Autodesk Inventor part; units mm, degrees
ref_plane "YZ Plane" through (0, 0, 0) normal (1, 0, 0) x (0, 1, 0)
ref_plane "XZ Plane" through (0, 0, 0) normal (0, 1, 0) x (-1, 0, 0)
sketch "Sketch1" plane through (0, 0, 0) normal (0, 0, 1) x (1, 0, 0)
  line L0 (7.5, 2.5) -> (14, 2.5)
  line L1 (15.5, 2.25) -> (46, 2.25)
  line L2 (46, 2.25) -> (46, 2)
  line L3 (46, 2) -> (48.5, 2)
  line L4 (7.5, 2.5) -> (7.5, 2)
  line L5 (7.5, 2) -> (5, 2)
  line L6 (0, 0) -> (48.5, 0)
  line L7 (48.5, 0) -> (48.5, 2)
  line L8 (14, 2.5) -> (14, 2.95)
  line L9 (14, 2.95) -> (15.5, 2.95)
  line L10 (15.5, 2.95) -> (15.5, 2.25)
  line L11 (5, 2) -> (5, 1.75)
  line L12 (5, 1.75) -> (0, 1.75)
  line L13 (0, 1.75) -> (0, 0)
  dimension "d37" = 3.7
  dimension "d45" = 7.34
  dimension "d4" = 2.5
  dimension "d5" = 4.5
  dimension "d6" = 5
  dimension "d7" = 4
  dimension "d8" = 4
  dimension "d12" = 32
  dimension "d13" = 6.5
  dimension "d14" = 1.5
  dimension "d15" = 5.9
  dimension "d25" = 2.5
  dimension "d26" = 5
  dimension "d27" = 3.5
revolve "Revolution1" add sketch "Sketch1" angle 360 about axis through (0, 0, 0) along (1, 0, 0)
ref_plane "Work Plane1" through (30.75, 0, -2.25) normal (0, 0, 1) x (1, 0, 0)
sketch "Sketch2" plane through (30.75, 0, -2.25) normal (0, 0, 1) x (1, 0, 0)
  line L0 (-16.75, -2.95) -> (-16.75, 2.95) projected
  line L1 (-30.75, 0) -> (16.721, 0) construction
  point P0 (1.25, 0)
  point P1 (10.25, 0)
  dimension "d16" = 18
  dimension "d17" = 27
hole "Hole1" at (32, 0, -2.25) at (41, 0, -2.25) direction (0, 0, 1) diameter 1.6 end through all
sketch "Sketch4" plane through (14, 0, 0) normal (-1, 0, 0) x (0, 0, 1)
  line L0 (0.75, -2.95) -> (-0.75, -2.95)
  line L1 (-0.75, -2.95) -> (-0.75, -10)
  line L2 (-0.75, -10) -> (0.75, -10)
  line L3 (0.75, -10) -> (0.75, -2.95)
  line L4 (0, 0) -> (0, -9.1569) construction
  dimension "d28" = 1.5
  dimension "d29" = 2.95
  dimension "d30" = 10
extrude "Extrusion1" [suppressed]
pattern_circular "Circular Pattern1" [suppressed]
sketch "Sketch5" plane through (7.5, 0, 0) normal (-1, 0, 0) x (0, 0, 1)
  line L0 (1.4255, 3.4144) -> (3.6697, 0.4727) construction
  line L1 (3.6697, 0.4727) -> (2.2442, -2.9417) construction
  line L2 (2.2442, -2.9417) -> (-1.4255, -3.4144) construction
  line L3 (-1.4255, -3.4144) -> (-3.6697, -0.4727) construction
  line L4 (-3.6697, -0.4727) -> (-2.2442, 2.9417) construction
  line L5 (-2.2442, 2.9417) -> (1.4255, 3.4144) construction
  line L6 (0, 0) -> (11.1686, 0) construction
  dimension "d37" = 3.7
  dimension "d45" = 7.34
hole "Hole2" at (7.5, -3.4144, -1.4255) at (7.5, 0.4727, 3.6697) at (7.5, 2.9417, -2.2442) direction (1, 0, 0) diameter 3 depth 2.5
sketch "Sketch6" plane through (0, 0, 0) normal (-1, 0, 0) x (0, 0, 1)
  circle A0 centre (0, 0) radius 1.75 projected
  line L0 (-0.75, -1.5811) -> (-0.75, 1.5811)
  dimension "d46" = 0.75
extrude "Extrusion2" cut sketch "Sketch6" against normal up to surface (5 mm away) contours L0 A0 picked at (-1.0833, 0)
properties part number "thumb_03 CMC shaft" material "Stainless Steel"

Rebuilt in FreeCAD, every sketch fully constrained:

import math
import FreeCAD as App
import Part
import Sketcher

V = App.Vector

doc = App.newDocument("Part")
params = doc.addObject("Spreadsheet::Sheet", "Params")
for row, (alias, value) in enumerate([
    ("sketch1_width", "5 mm"),
    ("sketch1_width2", "6.5 mm"),
    ("sketch1_width3", "2.5 mm"),
    ("sketch1_width4", "1.5 mm"),
    ("sketch1_height", "2 mm"),
    ("revolution_angle", "360 deg"),
    ("sketch2_diameter", "1.6 mm"),
    ("hole_diameter", "1.6 mm"),
    ("sketch3_diameter", "3 mm"),
    ("hole2_diameter", "3 mm"),
    ("hole2_depth", "2.5 mm"),
    ("sketch4_radius", "1.75 mm"),
    ("pocket1_length", "5 mm"),
], start=1):
    params.set(f"A{row}", alias)
    params.set(f"B{row}", "=" + value)
    params.setAlias(f"B{row}", alias)

body = doc.addObject("PartDesign::Body", "Body")

sketch1 = body.newObject("Sketcher::SketchObject", "Sketch")
sketch1.AttachmentSupport = (doc.getObject("XY_Plane"), [""])
sketch1.MapMode = "FlatFace"
sketch1.addGeometry([
    Part.LineSegment(V(14, 2.5, 0), V(7.5, 2.5, 0)),
    Part.LineSegment(V(7.5, 2.5, 0), V(7.5, 2, 0)),
    Part.LineSegment(V(7.5, 2, 0), V(5, 2, 0)),
    Part.LineSegment(V(5, 2, 0), V(5, 1.75, 0)),
    Part.LineSegment(V(5, 1.75, 0), V(0, 1.75, 0)),
    Part.LineSegment(V(0, 1.75, 0), V(0, 0, 0)),
    Part.LineSegment(V(0, 0, 0), V(48.5, 0, 0)),
    Part.LineSegment(V(48.5, 0, 0), V(48.5, 2, 0)),
    Part.LineSegment(V(48.5, 2, 0), V(46, 2, 0)),
    Part.LineSegment(V(46, 2, 0), V(46, 2.25, 0)),
    Part.LineSegment(V(46, 2.25, 0), V(15.5, 2.25, 0)),
    Part.LineSegment(V(15.5, 2.25, 0), V(15.5, 2.95, 0)),
    Part.LineSegment(V(15.5, 2.95, 0), V(14, 2.95, 0)),
    Part.LineSegment(V(14, 2.95, 0), V(14, 2.5, 0)),
], False)
sketch1.addConstraint([
    Sketcher.Constraint("Coincident", 0, 2, 1, 1),
    Sketcher.Constraint("Coincident", 1, 2, 2, 1),
    Sketcher.Constraint("Coincident", 2, 2, 3, 1),
    Sketcher.Constraint("Coincident", 3, 2, 4, 1),
    Sketcher.Constraint("Coincident", 4, 2, 5, 1),
    Sketcher.Constraint("Coincident", 5, 2, 6, 1),
    Sketcher.Constraint("Coincident", 6, 2, 7, 1),
    Sketcher.Constraint("Coincident", 7, 2, 8, 1),
    Sketcher.Constraint("Coincident", 8, 2, 9, 1),
    Sketcher.Constraint("Coincident", 9, 2, 10, 1),
    Sketcher.Constraint("Coincident", 10, 2, 11, 1),
    Sketcher.Constraint("Coincident", 11, 2, 12, 1),
    Sketcher.Constraint("Coincident", 12, 2, 13, 1),
    Sketcher.Constraint("Coincident", 13, 2, 0, 1),
    Sketcher.Constraint("Horizontal", 0),
    Sketcher.Constraint("Vertical", 1),
    Sketcher.Constraint("Horizontal", 2),
    Sketcher.Constraint("Vertical", 3),
    Sketcher.Constraint("Horizontal", 4),
    Sketcher.Constraint("Vertical", 5),
    Sketcher.Constraint("Horizontal", 6),
    Sketcher.Constraint("Vertical", 7),
    Sketcher.Constraint("Horizontal", 8),
    Sketcher.Constraint("Vertical", 9),
    Sketcher.Constraint("Horizontal", 10),
    Sketcher.Constraint("Vertical", 11),
    Sketcher.Constraint("Horizontal", 12),
    Sketcher.Constraint("Vertical", 13),
    Sketcher.Constraint("Coincident", 5, 2, -1, 1),
    Sketcher.Constraint("Horizontal", 2, 2, 7, 2),
    Sketcher.Constraint("Equal", 2, 8),
    Sketcher.Constraint("Equal", 3, 9),
    Sketcher.Constraint("DistanceX", 4, 2, 4, 1, 5.0),
    Sketcher.Constraint("DistanceX", 0, 2, 0, 1, 6.5),
    Sketcher.Constraint("DistanceX", 2, 2, 2, 1, 2.5),
    Sketcher.Constraint("DistanceX", 12, 2, 12, 1, 1.5),
    Sketcher.Constraint("DistanceY", -1, 1, 0, 2, 2.5),
    Sketcher.Constraint("DistanceY", 7, 1, 7, 2, 2.0),
    Sketcher.Constraint("DistanceX", 6, 1, 6, 2, 48.5),
    Sketcher.Constraint("DistanceY", 11, 1, 11, 2, 0.7),
    Sketcher.Constraint("DistanceY", 3, 2, 3, 1, 0.25),
])
sketch1.setExpression("Constraints[32]", "Params.sketch1_width")
sketch1.setExpression("Constraints[33]", "Params.sketch1_width2")
sketch1.setExpression("Constraints[34]", "Params.sketch1_width3")
sketch1.setExpression("Constraints[35]", "Params.sketch1_width4")
sketch1.setExpression("Constraints[37]", "Params.sketch1_height")
revolution = body.newObject("PartDesign::Revolution", "Revolution")
revolution.Profile = sketch1
revolution.ReferenceAxis = (sketch1, ["H_Axis"])
revolution.setExpression("Angle", "Params.revolution_angle")

sketch2 = body.newObject("Sketcher::SketchObject", "Sketch001")
sketch2.AttachmentSupport = (doc.getObject("XY_Plane"), [""])
sketch2.MapMode = "FlatFace"
sketch2.AttachmentOffset = App.Placement(V(0, 0, -2.25), App.Rotation())
sketch2.addGeometry([
    Part.Circle(V(32, 0, 0), V(0, 0, 1), 0.8),
    Part.Circle(V(41, 0, 0), V(0, 0, 1), 0.8),
], False)
sketch2.addConstraint([
    Sketcher.Constraint("Equal", 0, 1),
    Sketcher.Constraint("PointOnObject", 0, 3, -1),
    Sketcher.Constraint("PointOnObject", 1, 3, -1),
    Sketcher.Constraint("Diameter", 0, 1.6),
    Sketcher.Constraint("DistanceX", -1, 1, 0, 3, 32.0),
    Sketcher.Constraint("DistanceX", -1, 1, 1, 3, 41.0),
])
sketch2.setExpression("Constraints[3]", "Params.sketch2_diameter")
doc.recompute()
hole = body.newObject("PartDesign::Hole", "Hole")
hole.Profile = sketch2
hole.ThreadType = "None"
hole.setExpression("Diameter", "Params.hole_diameter")
hole.DepthType = "ThroughAll"
hole.Reversed = True

sketch3 = body.newObject("Sketcher::SketchObject", "Sketch002")
sketch3.AttachmentSupport = (doc.getObject("YZ_Plane"), [""])
sketch3.MapMode = "FlatFace"
sketch3.AttachmentOffset = App.Placement(V(0, 0, 7.5), App.Rotation())
sketch3.addGeometry([
    Part.Circle(V(-3.4, -1.4, 0), V(0, 0, 1), 1.5),
    Part.Circle(V(0.5, 3.7, 0), V(0, 0, 1), 1.5),
    Part.Circle(V(2.9, -2.2, 0), V(0, 0, 1), 1.5),
], False)
sketch3.addConstraint([
    Sketcher.Constraint("Equal", 0, 1),
    Sketcher.Constraint("Equal", 1, 2),
    Sketcher.Constraint("Diameter", 0, 3.0),
    Sketcher.Constraint("DistanceX", 0, 3, 1, 3, 3.887),
    Sketcher.Constraint("DistanceX", 1, 3, 2, 3, 2.469),
    Sketcher.Constraint("DistanceY", 2, 3, 1, 3, 5.914),
    Sketcher.Constraint("DistanceX", 0, 3, -1, 1, 3.4144),
    Sketcher.Constraint("DistanceY", 0, 3, -1, 1, 1.4255),
    Sketcher.Constraint("DistanceY", -1, 1, 1, 3, 3.6697),
])
sketch3.setExpression("Constraints[2]", "Params.sketch3_diameter")
doc.recompute()
hole2 = body.newObject("PartDesign::Hole", "Hole001")
hole2.Profile = sketch3
hole2.ThreadType = "None"
hole2.setExpression("Diameter", "Params.hole2_diameter")
hole2.DepthType = "Dimension"
hole2.setExpression("Depth", "Params.hole2_depth")
hole2.DrillPoint = "Flat"
hole2.Reversed = True

sketch4 = body.newObject("Sketcher::SketchObject", "Sketch003")
sketch4.AttachmentSupport = (doc.getObject("YZ_Plane"), [""])
sketch4.MapMode = "FlatFace"
sketch4.addGeometry([
    Part.LineSegment(V(-1.6, -0.8, 0), V(1.6, -0.8, 0)),
    Part.ArcOfCircle(Part.Circle(V(0, 0, 0), V(0, 0, 1), 1.8), math.radians(-155), math.radians(-25)),
], False)
sketch4.addConstraint([
    Sketcher.Constraint("Coincident", 0, 1, 1, 1),
    Sketcher.Constraint("Coincident", 1, 2, 0, 2),
    Sketcher.Constraint("Horizontal", 0),
    Sketcher.Constraint("Coincident", 1, 3, -1, 1),
    Sketcher.Constraint("DistanceY", 0, 1, -1, 1, 0.75),
    Sketcher.Constraint("Radius", 1, 1.75),
])
sketch4.setExpression("Constraints[5]", "Params.sketch4_radius")
pocket1 = body.newObject("PartDesign::Pocket", "Pocket")
pocket1.Profile = sketch4
pocket1.setExpression("Length", "Params.pocket1_length")
pocket1.Reversed = True

doc.recompute()
